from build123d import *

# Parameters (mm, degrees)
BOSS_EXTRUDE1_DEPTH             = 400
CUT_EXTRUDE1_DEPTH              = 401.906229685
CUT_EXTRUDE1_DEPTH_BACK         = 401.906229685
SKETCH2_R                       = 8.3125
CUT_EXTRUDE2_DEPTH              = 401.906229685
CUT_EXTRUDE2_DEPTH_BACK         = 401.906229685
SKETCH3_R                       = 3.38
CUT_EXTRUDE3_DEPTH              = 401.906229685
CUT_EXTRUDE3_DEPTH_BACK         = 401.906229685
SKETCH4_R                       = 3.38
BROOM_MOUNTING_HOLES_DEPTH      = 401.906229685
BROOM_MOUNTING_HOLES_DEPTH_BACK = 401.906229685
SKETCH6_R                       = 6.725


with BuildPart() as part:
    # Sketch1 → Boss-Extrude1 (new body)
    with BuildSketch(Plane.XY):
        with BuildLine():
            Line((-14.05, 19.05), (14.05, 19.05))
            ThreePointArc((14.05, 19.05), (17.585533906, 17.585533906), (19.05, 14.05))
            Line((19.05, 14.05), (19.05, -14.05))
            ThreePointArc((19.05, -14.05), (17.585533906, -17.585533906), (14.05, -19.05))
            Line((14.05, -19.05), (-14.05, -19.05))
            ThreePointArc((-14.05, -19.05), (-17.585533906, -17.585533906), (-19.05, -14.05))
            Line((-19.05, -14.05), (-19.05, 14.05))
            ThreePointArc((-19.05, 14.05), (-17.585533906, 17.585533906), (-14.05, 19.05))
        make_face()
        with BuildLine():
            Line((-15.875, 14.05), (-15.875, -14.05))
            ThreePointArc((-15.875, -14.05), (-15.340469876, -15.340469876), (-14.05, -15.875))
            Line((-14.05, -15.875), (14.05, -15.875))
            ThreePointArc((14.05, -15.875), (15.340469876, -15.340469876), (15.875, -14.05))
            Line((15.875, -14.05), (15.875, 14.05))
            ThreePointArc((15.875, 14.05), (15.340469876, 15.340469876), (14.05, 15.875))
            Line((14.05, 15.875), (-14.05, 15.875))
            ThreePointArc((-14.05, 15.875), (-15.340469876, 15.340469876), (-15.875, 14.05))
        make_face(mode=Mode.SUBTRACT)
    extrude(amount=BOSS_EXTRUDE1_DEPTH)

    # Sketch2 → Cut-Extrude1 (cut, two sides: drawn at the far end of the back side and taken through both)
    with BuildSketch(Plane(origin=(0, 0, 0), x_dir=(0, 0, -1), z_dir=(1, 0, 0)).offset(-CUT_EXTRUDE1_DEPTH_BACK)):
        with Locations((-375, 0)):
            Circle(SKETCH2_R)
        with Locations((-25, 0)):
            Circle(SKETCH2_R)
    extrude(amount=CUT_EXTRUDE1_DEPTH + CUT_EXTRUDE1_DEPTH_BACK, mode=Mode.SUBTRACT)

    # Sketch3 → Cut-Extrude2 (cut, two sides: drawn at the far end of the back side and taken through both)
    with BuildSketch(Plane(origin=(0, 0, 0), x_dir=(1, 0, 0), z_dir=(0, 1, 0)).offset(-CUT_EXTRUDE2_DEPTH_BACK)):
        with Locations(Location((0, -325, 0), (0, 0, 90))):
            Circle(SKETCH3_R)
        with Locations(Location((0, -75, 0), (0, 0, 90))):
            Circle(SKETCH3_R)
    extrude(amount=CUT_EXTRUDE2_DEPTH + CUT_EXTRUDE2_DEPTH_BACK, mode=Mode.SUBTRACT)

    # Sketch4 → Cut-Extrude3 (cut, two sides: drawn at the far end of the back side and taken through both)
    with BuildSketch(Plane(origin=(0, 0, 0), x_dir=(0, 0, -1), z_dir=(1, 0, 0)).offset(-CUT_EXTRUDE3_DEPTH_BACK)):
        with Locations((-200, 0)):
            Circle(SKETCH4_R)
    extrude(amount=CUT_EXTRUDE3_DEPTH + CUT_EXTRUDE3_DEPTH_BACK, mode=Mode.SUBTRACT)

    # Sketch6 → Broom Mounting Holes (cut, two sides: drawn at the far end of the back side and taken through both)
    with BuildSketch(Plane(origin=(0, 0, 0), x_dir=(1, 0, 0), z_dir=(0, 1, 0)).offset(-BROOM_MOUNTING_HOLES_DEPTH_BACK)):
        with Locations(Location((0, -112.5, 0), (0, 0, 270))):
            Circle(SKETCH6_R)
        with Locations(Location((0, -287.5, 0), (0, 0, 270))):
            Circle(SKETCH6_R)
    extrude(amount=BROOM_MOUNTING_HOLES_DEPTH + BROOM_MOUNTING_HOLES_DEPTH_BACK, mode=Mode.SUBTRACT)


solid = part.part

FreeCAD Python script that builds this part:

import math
import FreeCAD as App
import Part
import Sketcher

V = App.Vector

doc = App.newDocument("Part")
body = doc.addObject("PartDesign::Body", "Body")

# Sketch on XY plane
sketch1 = body.newObject("Sketcher::SketchObject", "Sketch")
sketch1.AttachmentSupport = (doc.getObject("XY_Plane"), [""])
sketch1.MapMode = "FlatFace"
sketch1.addGeometry(Part.LineSegment(V(14.05, 19.05, 0), V(-14.05, 19.05, 0)), False)
sketch1.addGeometry(Part.ArcOfCircle(Part.Circle(V(-14.05, 14.05, 0), V(0, 0, 1), 5), math.radians(90), math.radians(180)), False)
sketch1.addGeometry(Part.LineSegment(V(-19.05, 14.05, 0), V(-19.05, -14.05, 0)), False)
sketch1.addGeometry(Part.ArcOfCircle(Part.Circle(V(-14.05, -14.05, 0), V(0, 0, 1), 5), math.radians(180), math.radians(270)), False)
sketch1.addGeometry(Part.LineSegment(V(-14.05, -19.05, 0), V(14.05, -19.05, 0)), False)
sketch1.addGeometry(Part.ArcOfCircle(Part.Circle(V(14.05, -14.05, 0), V(0, 0, 1), 5), math.radians(-90), math.radians(0)), False)
sketch1.addGeometry(Part.LineSegment(V(19.05, -14.05, 0), V(19.05, 14.05, 0)), False)
sketch1.addGeometry(Part.ArcOfCircle(Part.Circle(V(14.05, 14.05, 0), V(0, 0, 1), 5), math.radians(0), math.radians(90)), False)
sketch1.addGeometry(Part.ArcOfCircle(Part.Circle(V(-14.05, 14.05, 0), V(0, 0, 1), 1.825), math.radians(90), math.radians(180)), False)
sketch1.addGeometry(Part.LineSegment(V(-14.05, 15.875, 0), V(14.05, 15.875, 0)), False)
sketch1.addGeometry(Part.ArcOfCircle(Part.Circle(V(14.05, 14.05, 0), V(0, 0, 1), 1.825), math.radians(0), math.radians(90)), False)
sketch1.addGeometry(Part.LineSegment(V(15.875, 14.05, 0), V(15.875, -14.05, 0)), False)
sketch1.addGeometry(Part.ArcOfCircle(Part.Circle(V(14.05, -14.05, 0), V(0, 0, 1), 1.825), math.radians(-90), math.radians(0)), False)
sketch1.addGeometry(Part.LineSegment(V(14.05, -15.875, 0), V(-14.05, -15.875, 0)), False)
sketch1.addGeometry(Part.ArcOfCircle(Part.Circle(V(-14.05, -14.05, 0), V(0, 0, 1), 1.825), math.radians(180), math.radians(270)), False)
sketch1.addGeometry(Part.LineSegment(V(-15.875, -14.05, 0), V(-15.875, 14.05, 0)), False)
sketch1.addConstraint(Sketcher.Constraint("Tangent", 0, 2, 1, 1))
sketch1.addConstraint(Sketcher.Constraint("Tangent", 1, 2, 2, 1))
sketch1.addConstraint(Sketcher.Constraint("Tangent", 2, 2, 3, 1))
sketch1.addConstraint(Sketcher.Constraint("Tangent", 3, 2, 4, 1))
sketch1.addConstraint(Sketcher.Constraint("Tangent", 4, 2, 5, 1))
sketch1.addConstraint(Sketcher.Constraint("Tangent", 5, 2, 6, 1))
sketch1.addConstraint(Sketcher.Constraint("Tangent", 6, 2, 7, 1))
sketch1.addConstraint(Sketcher.Constraint("Tangent", 7, 2, 0, 1))
sketch1.addConstraint(Sketcher.Constraint("Tangent", 8, 1, 9, 1))
sketch1.addConstraint(Sketcher.Constraint("Tangent", 9, 2, 10, 2))
sketch1.addConstraint(Sketcher.Constraint("Tangent", 10, 1, 11, 1))
sketch1.addConstraint(Sketcher.Constraint("Tangent", 11, 2, 12, 2))
sketch1.addConstraint(Sketcher.Constraint("Tangent", 12, 1, 13, 1))
sketch1.addConstraint(Sketcher.Constraint("Tangent", 13, 2, 14, 2))
sketch1.addConstraint(Sketcher.Constraint("Tangent", 14, 1, 15, 1))
sketch1.addConstraint(Sketcher.Constraint("Tangent", 15, 2, 8, 2))
sketch1.addConstraint(Sketcher.Constraint("Horizontal", 0))
sketch1.addConstraint(Sketcher.Constraint("Vertical", 2))
sketch1.addConstraint(Sketcher.Constraint("Horizontal", 4))
sketch1.addConstraint(Sketcher.Constraint("Vertical", 6))
sketch1.addConstraint(Sketcher.Constraint("Horizontal", 9))
sketch1.addConstraint(Sketcher.Constraint("Vertical", 11))
sketch1.addConstraint(Sketcher.Constraint("Horizontal", 13))
sketch1.addConstraint(Sketcher.Constraint("Vertical", 15))
sketch1.addConstraint(Sketcher.Constraint("Coincident", 8, 3, 1, 3))
sketch1.addConstraint(Sketcher.Constraint("Coincident", 10, 3, 7, 3))
sketch1.addConstraint(Sketcher.Constraint("Coincident", 12, 3, 5, 3))
sketch1.addConstraint(Sketcher.Constraint("Equal", 1, 3))
sketch1.addConstraint(Sketcher.Constraint("Equal", 3, 5))
sketch1.addConstraint(Sketcher.Constraint("Equal", 5, 7))
sketch1.addConstraint(Sketcher.Constraint("Equal", 12, 14))
sketch1.addConstraint(Sketcher.Constraint("Symmetric", 1, 3, 5, 3, -1, 1))
sketch1.addConstraint(Sketcher.Constraint("Equal", 13, 2))
sketch1.addConstraint(Sketcher.Constraint("Radius", 1, 5.0))
sketch1.addConstraint(Sketcher.Constraint("DistanceX", 0, 2, 0, 1, 28.1))
sketch1.addConstraint(Sketcher.Constraint("Radius", 8, 1.825))
pad1 = body.newObject("PartDesign::Pad", "Pad")
pad1.Profile = sketch1
pad1.Length = 400

# Sketch on YZ plane
sketch2 = body.newObject("Sketcher::SketchObject", "Sketch001")
sketch2.AttachmentSupport = (doc.getObject("YZ_Plane"), [""])
sketch2.MapMode = "FlatFace"
sketch2.addGeometry(Part.Circle(V(0, 375, 0), V(0, 0, 1), 8.3125), False)
sketch2.addGeometry(Part.Circle(V(0, 25, 0), V(0, 0, 1), 8.3125), False)
sketch2.addConstraint(Sketcher.Constraint("Equal", 0, 1))
sketch2.addConstraint(Sketcher.Constraint("PointOnObject", 0, 3, -2))
sketch2.addConstraint(Sketcher.Constraint("PointOnObject", 1, 3, -2))
sketch2.addConstraint(Sketcher.Constraint("Diameter", 0, 16.625))
sketch2.addConstraint(Sketcher.Constraint("DistanceY", -1, 1, 0, 3, 375.0))
sketch2.addConstraint(Sketcher.Constraint("DistanceY", -1, 1, 1, 3, 25.0))
pocket1 = body.newObject("PartDesign::Pocket", "Pocket")
pocket1.Profile = sketch2
pocket1.Type = "ThroughAll"
pocket1.Midplane = True

# Sketch on XZ plane
sketch3 = body.newObject("Sketcher::SketchObject", "Sketch002")
sketch3.AttachmentSupport = (doc.getObject("XZ_Plane"), [""])
sketch3.MapMode = "FlatFace"
sketch3.addGeometry(Part.Circle(V(0, 325, 0), V(0, 0, 1), 3.38), False)
sketch3.addGeometry(Part.Circle(V(0, 75, 0), V(0, 0, 1), 3.38), False)
sketch3.addConstraint(Sketcher.Constraint("Equal", 0, 1))
sketch3.addConstraint(Sketcher.Constraint("PointOnObject", 0, 3, -2))
sketch3.addConstraint(Sketcher.Constraint("PointOnObject", 1, 3, -2))
sketch3.addConstraint(Sketcher.Constraint("Diameter", 0, 6.76))
sketch3.addConstraint(Sketcher.Constraint("DistanceY", -1, 1, 0, 3, 325.0))
sketch3.addConstraint(Sketcher.Constraint("DistanceY", -1, 1, 1, 3, 75.0))
pocket2 = body.newObject("PartDesign::Pocket", "Pocket001")
pocket2.Profile = sketch3
pocket2.Type = "ThroughAll"
pocket2.Midplane = True

# Sketch on YZ plane
sketch4 = body.newObject("Sketcher::SketchObject", "Sketch003")
sketch4.AttachmentSupport = (doc.getObject("YZ_Plane"), [""])
sketch4.MapMode = "FlatFace"
sketch4.addGeometry(Part.Circle(V(0, 200, 0), V(0, 0, 1), 3.38), False)
sketch4.addConstraint(Sketcher.Constraint("PointOnObject", 0, 3, -2))
sketch4.addConstraint(Sketcher.Constraint("Diameter", 0, 6.76))
sketch4.addConstraint(Sketcher.Constraint("DistanceY", -1, 1, 0, 3, 200.0))
pocket3 = body.newObject("PartDesign::Pocket", "Pocket002")
pocket3.Profile = sketch4
pocket3.Type = "ThroughAll"
pocket3.Midplane = True

# Sketch on XZ plane
sketch5 = body.newObject("Sketcher::SketchObject", "Sketch004")
sketch5.AttachmentSupport = (doc.getObject("XZ_Plane"), [""])
sketch5.MapMode = "FlatFace"
sketch5.addGeometry(Part.Circle(V(0, 112.5, 0), V(0, 0, 1), 6.725), False)
sketch5.addGeometry(Part.Circle(V(0, 287.5, 0), V(0, 0, 1), 6.725), False)
sketch5.addConstraint(Sketcher.Constraint("Equal", 0, 1))
sketch5.addConstraint(Sketcher.Constraint("PointOnObject", 0, 3, -2))
sketch5.addConstraint(Sketcher.Constraint("PointOnObject", 1, 3, -2))
sketch5.addConstraint(Sketcher.Constraint("Diameter", 0, 13.45))
sketch5.addConstraint(Sketcher.Constraint("DistanceY", 0, 3, 1, 3, 175.0))
sketch5.addConstraint(Sketcher.Constraint("DistanceY", -1, 1, 0, 3, 112.5))
pocket4 = body.newObject("PartDesign::Pocket", "Pocket003")
pocket4.Profile = sketch5
pocket4.Type = "ThroughAll"
pocket4.Midplane = True

doc.recompute()
